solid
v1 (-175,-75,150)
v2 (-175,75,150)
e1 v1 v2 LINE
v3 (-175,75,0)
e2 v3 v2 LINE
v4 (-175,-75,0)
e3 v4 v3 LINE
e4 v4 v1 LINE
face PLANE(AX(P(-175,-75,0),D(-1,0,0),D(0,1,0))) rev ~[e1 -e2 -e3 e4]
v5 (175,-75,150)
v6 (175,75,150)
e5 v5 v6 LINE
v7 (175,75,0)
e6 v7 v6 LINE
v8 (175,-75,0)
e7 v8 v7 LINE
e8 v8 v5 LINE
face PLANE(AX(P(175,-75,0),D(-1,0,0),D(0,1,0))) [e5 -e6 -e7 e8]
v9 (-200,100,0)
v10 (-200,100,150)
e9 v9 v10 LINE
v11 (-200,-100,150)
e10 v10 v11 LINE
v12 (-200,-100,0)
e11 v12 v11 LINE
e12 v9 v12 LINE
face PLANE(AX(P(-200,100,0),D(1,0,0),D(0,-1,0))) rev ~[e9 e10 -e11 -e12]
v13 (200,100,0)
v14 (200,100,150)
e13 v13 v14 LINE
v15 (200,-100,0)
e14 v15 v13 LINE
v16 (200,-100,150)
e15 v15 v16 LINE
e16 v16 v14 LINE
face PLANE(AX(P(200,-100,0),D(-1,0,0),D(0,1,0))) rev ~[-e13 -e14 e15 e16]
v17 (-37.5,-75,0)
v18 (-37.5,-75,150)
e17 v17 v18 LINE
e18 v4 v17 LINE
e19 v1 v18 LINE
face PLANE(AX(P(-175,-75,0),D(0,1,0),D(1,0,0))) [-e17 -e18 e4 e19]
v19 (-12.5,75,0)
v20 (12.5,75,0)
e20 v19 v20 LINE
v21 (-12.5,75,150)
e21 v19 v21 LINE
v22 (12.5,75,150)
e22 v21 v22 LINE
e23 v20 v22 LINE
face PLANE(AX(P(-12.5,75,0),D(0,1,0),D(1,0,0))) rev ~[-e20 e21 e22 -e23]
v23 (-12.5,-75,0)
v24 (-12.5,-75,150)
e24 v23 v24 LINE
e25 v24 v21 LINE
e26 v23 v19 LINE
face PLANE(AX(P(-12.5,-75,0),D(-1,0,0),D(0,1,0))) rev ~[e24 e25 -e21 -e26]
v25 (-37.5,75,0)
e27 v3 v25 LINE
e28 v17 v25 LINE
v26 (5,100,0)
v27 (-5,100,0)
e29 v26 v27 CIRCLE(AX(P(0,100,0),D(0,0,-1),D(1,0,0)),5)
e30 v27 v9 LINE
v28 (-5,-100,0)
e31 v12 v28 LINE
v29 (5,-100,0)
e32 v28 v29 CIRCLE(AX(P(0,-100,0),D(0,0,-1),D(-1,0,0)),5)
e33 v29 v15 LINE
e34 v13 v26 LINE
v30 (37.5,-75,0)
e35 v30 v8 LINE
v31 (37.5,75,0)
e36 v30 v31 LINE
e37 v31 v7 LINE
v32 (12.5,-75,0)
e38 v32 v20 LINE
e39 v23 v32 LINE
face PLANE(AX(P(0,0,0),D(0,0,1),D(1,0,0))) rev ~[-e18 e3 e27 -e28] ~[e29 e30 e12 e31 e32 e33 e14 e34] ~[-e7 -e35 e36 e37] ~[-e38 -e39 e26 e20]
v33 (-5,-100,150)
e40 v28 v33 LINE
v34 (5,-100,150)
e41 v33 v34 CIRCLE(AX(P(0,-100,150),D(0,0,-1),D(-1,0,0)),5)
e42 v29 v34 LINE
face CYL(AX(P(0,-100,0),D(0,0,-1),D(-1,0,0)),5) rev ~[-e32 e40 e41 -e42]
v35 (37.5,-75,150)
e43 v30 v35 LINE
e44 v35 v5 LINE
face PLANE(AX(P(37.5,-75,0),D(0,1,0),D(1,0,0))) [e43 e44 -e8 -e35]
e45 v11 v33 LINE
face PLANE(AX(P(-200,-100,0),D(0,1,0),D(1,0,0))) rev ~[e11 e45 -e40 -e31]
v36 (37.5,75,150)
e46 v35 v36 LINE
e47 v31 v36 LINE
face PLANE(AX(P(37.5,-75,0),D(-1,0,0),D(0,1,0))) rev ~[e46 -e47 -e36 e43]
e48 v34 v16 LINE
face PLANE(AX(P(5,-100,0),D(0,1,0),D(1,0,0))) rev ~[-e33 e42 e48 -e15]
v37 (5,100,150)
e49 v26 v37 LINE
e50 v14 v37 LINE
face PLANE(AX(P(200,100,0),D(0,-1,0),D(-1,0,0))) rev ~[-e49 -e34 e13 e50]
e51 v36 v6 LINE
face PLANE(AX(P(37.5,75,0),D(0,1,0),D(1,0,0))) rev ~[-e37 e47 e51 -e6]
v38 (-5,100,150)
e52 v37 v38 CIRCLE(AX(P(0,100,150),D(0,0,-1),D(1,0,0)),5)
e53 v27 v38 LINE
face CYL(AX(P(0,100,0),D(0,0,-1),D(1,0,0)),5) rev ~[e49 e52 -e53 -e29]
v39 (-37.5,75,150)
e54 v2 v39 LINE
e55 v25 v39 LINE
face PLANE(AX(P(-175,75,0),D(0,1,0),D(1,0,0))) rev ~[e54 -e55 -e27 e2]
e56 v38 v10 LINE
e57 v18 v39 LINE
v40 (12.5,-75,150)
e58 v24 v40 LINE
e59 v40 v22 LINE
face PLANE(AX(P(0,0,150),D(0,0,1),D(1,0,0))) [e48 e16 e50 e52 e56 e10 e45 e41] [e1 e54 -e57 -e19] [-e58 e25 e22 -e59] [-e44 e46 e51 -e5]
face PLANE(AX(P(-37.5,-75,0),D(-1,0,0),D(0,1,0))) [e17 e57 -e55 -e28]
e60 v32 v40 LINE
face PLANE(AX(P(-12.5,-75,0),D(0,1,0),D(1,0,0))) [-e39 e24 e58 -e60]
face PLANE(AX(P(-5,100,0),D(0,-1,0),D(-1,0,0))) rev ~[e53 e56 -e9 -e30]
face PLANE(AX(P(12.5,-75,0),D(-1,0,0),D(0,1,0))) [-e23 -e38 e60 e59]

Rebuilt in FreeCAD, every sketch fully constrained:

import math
import FreeCAD as App
import Part
import Sketcher
Q = App.Units.Quantity

doc = App.newDocument("Part")
params = doc.addObject("Spreadsheet::Sheet", "Params")
for row, (alias, value) in enumerate([
    ("sketch1_radius", "5 mm"),
    ("sketch1_width", "195 mm"),
    ("sketch1_width2", "25 mm"),
    ("sketch1_height", "200 mm"),
    ("sketch1_height2", "150 mm"),
    ("pad1_length", "150 mm"),
], start=1):
    params.set(f"A{row}", alias)
    params.set(f"B{row}", "=" + value)
    params.setAlias(f"B{row}", alias)

body = doc.addObject("PartDesign::Body", "Body")

sketch1 = doc.addObject("Sketcher::SketchObject", "Sketch")
body.addObject(sketch1)
sketch1.AttachmentSupport = (doc.XY_Plane, [""])
sketch1.MapMode = "FlatFace"
sketch1.addGeometry(Part.LineSegment(App.Vector(200, -100, 0), App.Vector(200, 100, 0)), False)
sketch1.addGeometry(Part.LineSegment(App.Vector(200, 100, 0), App.Vector(5, 100, 0)), False)
sketch1.addGeometry(Part.ArcOfCircle(Part.Circle(App.Vector(0, 100, 0), App.Vector(0, 0, 1), 5), math.radians(180), math.radians(360)), False)
sketch1.addGeometry(Part.LineSegment(App.Vector(-5, 100, 0), App.Vector(-200, 100, 0)), False)
sketch1.addGeometry(Part.LineSegment(App.Vector(-200, 100, 0), App.Vector(-200, -100, 0)), False)
sketch1.addGeometry(Part.LineSegment(App.Vector(-200, -100, 0), App.Vector(-5, -100, 0)), False)
sketch1.addGeometry(Part.ArcOfCircle(Part.Circle(App.Vector(0, -100, 0), App.Vector(0, 0, 1), 5), math.radians(0), math.radians(180)), False)
sketch1.addGeometry(Part.LineSegment(App.Vector(5, -100, 0), App.Vector(200, -100, 0)), False)
sketch1.addGeometry(Part.LineSegment(App.Vector(-38, -75, 0), App.Vector(-175, -75, 0)), False)
sketch1.addGeometry(Part.LineSegment(App.Vector(-175, -75, 0), App.Vector(-175, 75, 0)), False)
sketch1.addGeometry(Part.LineSegment(App.Vector(-175, 75, 0), App.Vector(-38, 75, 0)), False)
sketch1.addGeometry(Part.LineSegment(App.Vector(-38, 75, 0), App.Vector(-38, -75, 0)), False)
sketch1.addGeometry(Part.LineSegment(App.Vector(12, -75, 0), App.Vector(-12, -75, 0)), False)
sketch1.addGeometry(Part.LineSegment(App.Vector(-12, -75, 0), App.Vector(-12, 75, 0)), False)
sketch1.addGeometry(Part.LineSegment(App.Vector(-12, 75, 0), App.Vector(12, 75, 0)), False)
sketch1.addGeometry(Part.LineSegment(App.Vector(12, 75, 0), App.Vector(12, -75, 0)), False)
sketch1.addGeometry(Part.LineSegment(App.Vector(175, -75, 0), App.Vector(38, -75, 0)), False)
sketch1.addGeometry(Part.LineSegment(App.Vector(38, -75, 0), App.Vector(38, 75, 0)), False)
sketch1.addGeometry(Part.LineSegment(App.Vector(38, 75, 0), App.Vector(175, 75, 0)), False)
sketch1.addGeometry(Part.LineSegment(App.Vector(175, 75, 0), App.Vector(175, -75, 0)), False)
sketch1.addConstraint(Sketcher.Constraint("Coincident", 0, 2, 1, 1))
sketch1.addConstraint(Sketcher.Constraint("Coincident", 1, 2, 2, 2))
sketch1.addConstraint(Sketcher.Constraint("Coincident", 2, 1, 3, 1))
sketch1.addConstraint(Sketcher.Constraint("Coincident", 3, 2, 4, 1))
sketch1.addConstraint(Sketcher.Constraint("Coincident", 4, 2, 5, 1))
sketch1.addConstraint(Sketcher.Constraint("Coincident", 5, 2, 6, 2))
sketch1.addConstraint(Sketcher.Constraint("Coincident", 6, 1, 7, 1))
sketch1.addConstraint(Sketcher.Constraint("Coincident", 7, 2, 0, 1))
sketch1.addConstraint(Sketcher.Constraint("Coincident", 8, 2, 9, 1))
sketch1.addConstraint(Sketcher.Constraint("Coincident", 9, 2, 10, 1))
sketch1.addConstraint(Sketcher.Constraint("Coincident", 10, 2, 11, 1))
sketch1.addConstraint(Sketcher.Constraint("Coincident", 11, 2, 8, 1))
sketch1.addConstraint(Sketcher.Constraint("Coincident", 12, 2, 13, 1))
sketch1.addConstraint(Sketcher.Constraint("Coincident", 13, 2, 14, 1))
sketch1.addConstraint(Sketcher.Constraint("Coincident", 14, 2, 15, 1))
sketch1.addConstraint(Sketcher.Constraint("Coincident", 15, 2, 12, 1))
sketch1.addConstraint(Sketcher.Constraint("Coincident", 16, 2, 17, 1))
sketch1.addConstraint(Sketcher.Constraint("Coincident", 17, 2, 18, 1))
sketch1.addConstraint(Sketcher.Constraint("Coincident", 18, 2, 19, 1))
sketch1.addConstraint(Sketcher.Constraint("Coincident", 19, 2, 16, 1))
sketch1.addConstraint(Sketcher.Constraint("Vertical", 0))
sketch1.addConstraint(Sketcher.Constraint("Horizontal", 1))
sketch1.addConstraint(Sketcher.Constraint("Horizontal", 3))
sketch1.addConstraint(Sketcher.Constraint("Vertical", 4))
sketch1.addConstraint(Sketcher.Constraint("Horizontal", 5))
sketch1.addConstraint(Sketcher.Constraint("Horizontal", 7))
sketch1.addConstraint(Sketcher.Constraint("Horizontal", 8))
sketch1.addConstraint(Sketcher.Constraint("Vertical", 9))
sketch1.addConstraint(Sketcher.Constraint("Horizontal", 10))
sketch1.addConstraint(Sketcher.Constraint("Vertical", 11))
sketch1.addConstraint(Sketcher.Constraint("Horizontal", 12))
sketch1.addConstraint(Sketcher.Constraint("Vertical", 13))
sketch1.addConstraint(Sketcher.Constraint("Horizontal", 14))
sketch1.addConstraint(Sketcher.Constraint("Vertical", 15))
sketch1.addConstraint(Sketcher.Constraint("Horizontal", 16))
sketch1.addConstraint(Sketcher.Constraint("Vertical", 17))
sketch1.addConstraint(Sketcher.Constraint("Horizontal", 18))
sketch1.addConstraint(Sketcher.Constraint("Vertical", 19))
sketch1.addConstraint(Sketcher.Constraint("Equal", 2, 6))
sketch1.addConstraint(Sketcher.Constraint("Symmetric", 2, 3, 6, 3, -1, 1))
sketch1.addConstraint(Sketcher.Constraint("Symmetric", 0, 2, 4, 2, -1, 1))
sketch1.addConstraint(Sketcher.Constraint("Symmetric", 12, 2, 14, 2, -1, 1))
sketch1.addConstraint(Sketcher.Constraint("Symmetric", 10, 2, 16, 2, -1, 1))
sketch1.addConstraint(Sketcher.Constraint("Symmetric", 8, 2, 18, 2, -1, 1))
sketch1.addConstraint(Sketcher.Constraint("Symmetric", 1, 2, 2, 1, -2))
sketch1.addConstraint(Sketcher.Constraint("Horizontal", 2, 3, 0, 2))
sketch1.addConstraint(Sketcher.Constraint("Horizontal", 5, 2, 6, 1))
sketch1.addConstraint(Sketcher.Constraint("Horizontal", 11, 2, 12, 2))
sketch1.addConstraint(Sketcher.Constraint("Horizontal", 10, 2, 13, 2))
sketch1.addConstraint(Sketcher.Constraint("Radius", 2, Q("5 mm")))
sketch1.addConstraint(Sketcher.Constraint("DistanceX", 1, 2, 1, 1, Q("195 mm")))
sketch1.addConstraint(Sketcher.Constraint("DistanceX", 12, 2, 12, 1, Q("25 mm")))
sketch1.addConstraint(Sketcher.Constraint("DistanceY", 0, 1, 0, 2, Q("200 mm")))
sketch1.addConstraint(Sketcher.Constraint("DistanceY", 9, 1, 9, 2, Q("150 mm")))
sketch1.addConstraint(Sketcher.Constraint("DistanceX", 8, 2, 8, 1, Q("137.5 mm")))
sketch1.addConstraint(Sketcher.Constraint("DistanceX", 8, 2, -1, 1, Q("175 mm")))
sketch1.setExpression("Constraints[49]", "Params.sketch1_radius")
sketch1.setExpression("Constraints[50]", "Params.sketch1_width")
sketch1.setExpression("Constraints[51]", "Params.sketch1_width2")
sketch1.setExpression("Constraints[52]", "Params.sketch1_height")
sketch1.setExpression("Constraints[53]", "Params.sketch1_height2")
pad1 = doc.addObject("PartDesign::Pad", "Pad")
body.addObject(pad1)
pad1.Profile = sketch1
pad1.setExpression("Length", "Params.pad1_length")

doc.recompute()
